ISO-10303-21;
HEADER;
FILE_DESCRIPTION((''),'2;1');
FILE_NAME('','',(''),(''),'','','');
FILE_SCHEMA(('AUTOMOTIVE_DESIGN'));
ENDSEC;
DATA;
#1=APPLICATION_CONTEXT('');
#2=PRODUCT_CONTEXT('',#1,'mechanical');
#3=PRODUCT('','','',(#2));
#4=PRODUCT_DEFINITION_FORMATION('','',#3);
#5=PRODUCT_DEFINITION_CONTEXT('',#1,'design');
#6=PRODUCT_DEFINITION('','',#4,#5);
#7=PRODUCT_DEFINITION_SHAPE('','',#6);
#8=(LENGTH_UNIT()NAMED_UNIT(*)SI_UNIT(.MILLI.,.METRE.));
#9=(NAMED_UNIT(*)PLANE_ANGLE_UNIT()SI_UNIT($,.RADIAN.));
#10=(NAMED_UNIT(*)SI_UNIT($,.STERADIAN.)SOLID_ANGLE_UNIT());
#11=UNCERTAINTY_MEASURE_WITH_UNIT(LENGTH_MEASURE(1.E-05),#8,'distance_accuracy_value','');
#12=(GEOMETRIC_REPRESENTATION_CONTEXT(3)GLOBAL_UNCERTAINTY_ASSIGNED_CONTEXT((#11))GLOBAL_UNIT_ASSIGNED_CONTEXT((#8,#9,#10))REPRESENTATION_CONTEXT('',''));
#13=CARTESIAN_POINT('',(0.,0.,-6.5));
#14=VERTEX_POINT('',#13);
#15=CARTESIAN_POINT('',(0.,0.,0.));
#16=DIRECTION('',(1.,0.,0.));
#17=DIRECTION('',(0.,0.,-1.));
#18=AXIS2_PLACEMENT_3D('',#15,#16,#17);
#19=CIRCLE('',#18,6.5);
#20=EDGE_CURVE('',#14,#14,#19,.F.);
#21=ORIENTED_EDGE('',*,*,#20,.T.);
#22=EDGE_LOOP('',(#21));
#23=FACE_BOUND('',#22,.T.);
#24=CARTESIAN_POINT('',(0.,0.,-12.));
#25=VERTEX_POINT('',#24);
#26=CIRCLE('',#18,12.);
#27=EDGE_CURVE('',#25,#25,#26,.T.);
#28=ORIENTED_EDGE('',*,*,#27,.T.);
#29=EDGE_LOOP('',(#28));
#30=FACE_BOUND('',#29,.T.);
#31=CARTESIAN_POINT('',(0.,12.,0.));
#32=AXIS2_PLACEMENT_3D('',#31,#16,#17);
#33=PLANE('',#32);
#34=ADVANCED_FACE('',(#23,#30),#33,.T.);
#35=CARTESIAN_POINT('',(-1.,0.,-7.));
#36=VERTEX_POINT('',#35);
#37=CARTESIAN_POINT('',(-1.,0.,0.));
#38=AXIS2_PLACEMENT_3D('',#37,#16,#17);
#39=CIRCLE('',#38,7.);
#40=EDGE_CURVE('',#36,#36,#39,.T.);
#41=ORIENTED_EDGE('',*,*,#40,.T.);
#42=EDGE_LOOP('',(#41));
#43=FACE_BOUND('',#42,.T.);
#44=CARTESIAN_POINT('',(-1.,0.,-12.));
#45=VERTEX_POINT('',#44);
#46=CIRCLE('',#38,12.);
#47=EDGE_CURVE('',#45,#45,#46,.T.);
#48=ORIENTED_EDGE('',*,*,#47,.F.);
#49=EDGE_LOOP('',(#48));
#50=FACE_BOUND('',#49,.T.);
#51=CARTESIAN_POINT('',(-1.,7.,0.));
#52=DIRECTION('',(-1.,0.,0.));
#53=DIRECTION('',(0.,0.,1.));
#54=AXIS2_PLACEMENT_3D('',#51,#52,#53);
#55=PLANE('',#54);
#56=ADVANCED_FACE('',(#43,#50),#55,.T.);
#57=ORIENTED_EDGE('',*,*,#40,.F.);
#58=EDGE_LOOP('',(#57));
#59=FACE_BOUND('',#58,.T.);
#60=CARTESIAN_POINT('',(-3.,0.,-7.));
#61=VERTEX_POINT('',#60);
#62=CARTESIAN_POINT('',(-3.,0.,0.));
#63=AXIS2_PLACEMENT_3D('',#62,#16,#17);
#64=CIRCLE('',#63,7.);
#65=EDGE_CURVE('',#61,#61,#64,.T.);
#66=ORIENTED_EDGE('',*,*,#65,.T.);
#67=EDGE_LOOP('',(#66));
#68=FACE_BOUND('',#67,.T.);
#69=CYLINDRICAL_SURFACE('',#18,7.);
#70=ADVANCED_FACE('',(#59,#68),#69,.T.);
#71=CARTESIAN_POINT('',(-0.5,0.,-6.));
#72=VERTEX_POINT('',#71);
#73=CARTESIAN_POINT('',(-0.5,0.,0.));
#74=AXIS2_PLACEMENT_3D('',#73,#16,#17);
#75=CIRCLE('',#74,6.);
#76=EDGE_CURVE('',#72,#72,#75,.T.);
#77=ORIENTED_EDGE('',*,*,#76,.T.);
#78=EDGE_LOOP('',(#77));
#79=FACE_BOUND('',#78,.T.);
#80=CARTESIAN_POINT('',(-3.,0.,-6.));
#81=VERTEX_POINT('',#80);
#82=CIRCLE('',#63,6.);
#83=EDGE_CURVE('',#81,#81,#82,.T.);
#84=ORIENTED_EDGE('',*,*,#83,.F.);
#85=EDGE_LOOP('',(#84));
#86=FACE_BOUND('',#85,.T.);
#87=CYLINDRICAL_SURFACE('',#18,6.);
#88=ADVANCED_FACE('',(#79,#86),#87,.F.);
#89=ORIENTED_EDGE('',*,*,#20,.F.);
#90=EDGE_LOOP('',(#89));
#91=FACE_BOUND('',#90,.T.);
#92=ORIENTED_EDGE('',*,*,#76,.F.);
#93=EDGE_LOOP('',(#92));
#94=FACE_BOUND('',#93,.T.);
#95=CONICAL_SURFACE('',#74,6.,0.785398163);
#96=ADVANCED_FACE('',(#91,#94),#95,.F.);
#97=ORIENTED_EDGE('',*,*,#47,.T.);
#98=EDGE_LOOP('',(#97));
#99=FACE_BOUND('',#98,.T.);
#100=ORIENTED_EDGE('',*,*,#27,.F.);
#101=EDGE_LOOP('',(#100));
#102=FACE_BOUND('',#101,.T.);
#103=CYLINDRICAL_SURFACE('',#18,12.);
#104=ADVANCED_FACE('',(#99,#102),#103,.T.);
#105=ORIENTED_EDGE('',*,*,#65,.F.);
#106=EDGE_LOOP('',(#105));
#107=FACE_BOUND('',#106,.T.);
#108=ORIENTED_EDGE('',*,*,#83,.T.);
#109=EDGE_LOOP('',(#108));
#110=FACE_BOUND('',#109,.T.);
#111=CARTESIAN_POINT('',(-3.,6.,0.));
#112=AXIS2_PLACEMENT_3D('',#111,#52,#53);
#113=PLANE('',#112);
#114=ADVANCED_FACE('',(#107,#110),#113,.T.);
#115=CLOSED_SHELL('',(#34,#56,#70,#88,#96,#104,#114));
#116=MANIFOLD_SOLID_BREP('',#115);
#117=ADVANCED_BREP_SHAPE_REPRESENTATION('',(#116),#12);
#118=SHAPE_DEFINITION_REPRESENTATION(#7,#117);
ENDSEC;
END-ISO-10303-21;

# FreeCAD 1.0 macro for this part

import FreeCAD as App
import Part
import Sketcher

V = App.Vector
Q = App.Units.Quantity


def edges_at(feature, points):
    """Names of the edges that pass closest to the given points."""
    edges = feature.Shape.Edges
    near = lambda p: min(range(len(edges)), key=lambda i: edges[i].distToShape(Part.Vertex(*p))[0])
    return sorted({f"Edge{near(p) + 1}" for p in points})

doc = App.newDocument("Part")
params = doc.addObject("Spreadsheet::Sheet", "Params")
for row, (alias, value) in enumerate([
    ("sketch1_width", "3 mm"),
    ("sketch1_width2", "1 mm"),
    ("sketch1_height", "6 mm"),
    ("revolution_angle", "360 deg"),
    ("chamfer_size", "0.5 mm"),
], start=1):
    params.set(f"A{row}", alias)
    params.set(f"B{row}", "=" + value)
    params.setAlias(f"B{row}", alias)

body = doc.addObject("PartDesign::Body", "Body")

# Sketch on XY plane
sketch1 = body.newObject("Sketcher::SketchObject", "Sketch")
sketch1.AttachmentSupport = (doc.getObject("XY_Plane"), [""])
sketch1.MapMode = "FlatFace"
sketch1.addGeometry(Part.LineSegment(V(-3, 6, 0), V(0, 6, 0)), False)
sketch1.addGeometry(Part.LineSegment(V(0, 6, 0), V(0, 12, 0)), False)
sketch1.addGeometry(Part.LineSegment(V(0, 12, 0), V(-1, 12, 0)), False)
sketch1.addGeometry(Part.LineSegment(V(-1, 12, 0), V(-1, 7, 0)), False)
sketch1.addGeometry(Part.LineSegment(V(-1, 7, 0), V(-3, 7, 0)), False)
sketch1.addGeometry(Part.LineSegment(V(-3, 7, 0), V(-3, 6, 0)), False)
sketch1.addConstraint(Sketcher.Constraint("Coincident", 0, 2, 1, 1))
sketch1.addConstraint(Sketcher.Constraint("Coincident", 1, 2, 2, 1))
sketch1.addConstraint(Sketcher.Constraint("Coincident", 2, 2, 3, 1))
sketch1.addConstraint(Sketcher.Constraint("Coincident", 3, 2, 4, 1))
sketch1.addConstraint(Sketcher.Constraint("Coincident", 4, 2, 5, 1))
sketch1.addConstraint(Sketcher.Constraint("Coincident", 5, 2, 0, 1))
sketch1.addConstraint(Sketcher.Constraint("Horizontal", 0))
sketch1.addConstraint(Sketcher.Constraint("Vertical", 1))
sketch1.addConstraint(Sketcher.Constraint("Horizontal", 2))
sketch1.addConstraint(Sketcher.Constraint("Vertical", 3))
sketch1.addConstraint(Sketcher.Constraint("Horizontal", 4))
sketch1.addConstraint(Sketcher.Constraint("Vertical", 5))
sketch1.addConstraint(Sketcher.Constraint("PointOnObject", 0, 2, -2))
sketch1.addConstraint(Sketcher.Constraint("Equal", 2, 5))
sketch1.addConstraint(Sketcher.Constraint("DistanceX", 0, 1, 0, 2, Q("3 mm")))
sketch1.addConstraint(Sketcher.Constraint("DistanceX", 2, 2, 2, 1, Q("1 mm")))
sketch1.addConstraint(Sketcher.Constraint("DistanceY", 1, 1, 1, 2, Q("6 mm")))
sketch1.addConstraint(Sketcher.Constraint("DistanceY", -1, 1, 0, 2, Q("6 mm")))
sketch1.setExpression("Constraints[14]", "Params.sketch1_width")
sketch1.setExpression("Constraints[15]", "Params.sketch1_width2")
sketch1.setExpression("Constraints[16]", "Params.sketch1_height")
revolution = body.newObject("PartDesign::Revolution", "Revolution")
revolution.Profile = sketch1
revolution.ReferenceAxis = (sketch1, ["H_Axis"])
revolution.setExpression("Angle", "Params.revolution_angle")
doc.recompute()

chamfer = body.newObject("PartDesign::Chamfer", "Chamfer")
chamfer.Base = (revolution, edges_at(revolution, [(0, -6, 0)]))
chamfer.setExpression("Size", "Params.chamfer_size")

doc.recompute()
